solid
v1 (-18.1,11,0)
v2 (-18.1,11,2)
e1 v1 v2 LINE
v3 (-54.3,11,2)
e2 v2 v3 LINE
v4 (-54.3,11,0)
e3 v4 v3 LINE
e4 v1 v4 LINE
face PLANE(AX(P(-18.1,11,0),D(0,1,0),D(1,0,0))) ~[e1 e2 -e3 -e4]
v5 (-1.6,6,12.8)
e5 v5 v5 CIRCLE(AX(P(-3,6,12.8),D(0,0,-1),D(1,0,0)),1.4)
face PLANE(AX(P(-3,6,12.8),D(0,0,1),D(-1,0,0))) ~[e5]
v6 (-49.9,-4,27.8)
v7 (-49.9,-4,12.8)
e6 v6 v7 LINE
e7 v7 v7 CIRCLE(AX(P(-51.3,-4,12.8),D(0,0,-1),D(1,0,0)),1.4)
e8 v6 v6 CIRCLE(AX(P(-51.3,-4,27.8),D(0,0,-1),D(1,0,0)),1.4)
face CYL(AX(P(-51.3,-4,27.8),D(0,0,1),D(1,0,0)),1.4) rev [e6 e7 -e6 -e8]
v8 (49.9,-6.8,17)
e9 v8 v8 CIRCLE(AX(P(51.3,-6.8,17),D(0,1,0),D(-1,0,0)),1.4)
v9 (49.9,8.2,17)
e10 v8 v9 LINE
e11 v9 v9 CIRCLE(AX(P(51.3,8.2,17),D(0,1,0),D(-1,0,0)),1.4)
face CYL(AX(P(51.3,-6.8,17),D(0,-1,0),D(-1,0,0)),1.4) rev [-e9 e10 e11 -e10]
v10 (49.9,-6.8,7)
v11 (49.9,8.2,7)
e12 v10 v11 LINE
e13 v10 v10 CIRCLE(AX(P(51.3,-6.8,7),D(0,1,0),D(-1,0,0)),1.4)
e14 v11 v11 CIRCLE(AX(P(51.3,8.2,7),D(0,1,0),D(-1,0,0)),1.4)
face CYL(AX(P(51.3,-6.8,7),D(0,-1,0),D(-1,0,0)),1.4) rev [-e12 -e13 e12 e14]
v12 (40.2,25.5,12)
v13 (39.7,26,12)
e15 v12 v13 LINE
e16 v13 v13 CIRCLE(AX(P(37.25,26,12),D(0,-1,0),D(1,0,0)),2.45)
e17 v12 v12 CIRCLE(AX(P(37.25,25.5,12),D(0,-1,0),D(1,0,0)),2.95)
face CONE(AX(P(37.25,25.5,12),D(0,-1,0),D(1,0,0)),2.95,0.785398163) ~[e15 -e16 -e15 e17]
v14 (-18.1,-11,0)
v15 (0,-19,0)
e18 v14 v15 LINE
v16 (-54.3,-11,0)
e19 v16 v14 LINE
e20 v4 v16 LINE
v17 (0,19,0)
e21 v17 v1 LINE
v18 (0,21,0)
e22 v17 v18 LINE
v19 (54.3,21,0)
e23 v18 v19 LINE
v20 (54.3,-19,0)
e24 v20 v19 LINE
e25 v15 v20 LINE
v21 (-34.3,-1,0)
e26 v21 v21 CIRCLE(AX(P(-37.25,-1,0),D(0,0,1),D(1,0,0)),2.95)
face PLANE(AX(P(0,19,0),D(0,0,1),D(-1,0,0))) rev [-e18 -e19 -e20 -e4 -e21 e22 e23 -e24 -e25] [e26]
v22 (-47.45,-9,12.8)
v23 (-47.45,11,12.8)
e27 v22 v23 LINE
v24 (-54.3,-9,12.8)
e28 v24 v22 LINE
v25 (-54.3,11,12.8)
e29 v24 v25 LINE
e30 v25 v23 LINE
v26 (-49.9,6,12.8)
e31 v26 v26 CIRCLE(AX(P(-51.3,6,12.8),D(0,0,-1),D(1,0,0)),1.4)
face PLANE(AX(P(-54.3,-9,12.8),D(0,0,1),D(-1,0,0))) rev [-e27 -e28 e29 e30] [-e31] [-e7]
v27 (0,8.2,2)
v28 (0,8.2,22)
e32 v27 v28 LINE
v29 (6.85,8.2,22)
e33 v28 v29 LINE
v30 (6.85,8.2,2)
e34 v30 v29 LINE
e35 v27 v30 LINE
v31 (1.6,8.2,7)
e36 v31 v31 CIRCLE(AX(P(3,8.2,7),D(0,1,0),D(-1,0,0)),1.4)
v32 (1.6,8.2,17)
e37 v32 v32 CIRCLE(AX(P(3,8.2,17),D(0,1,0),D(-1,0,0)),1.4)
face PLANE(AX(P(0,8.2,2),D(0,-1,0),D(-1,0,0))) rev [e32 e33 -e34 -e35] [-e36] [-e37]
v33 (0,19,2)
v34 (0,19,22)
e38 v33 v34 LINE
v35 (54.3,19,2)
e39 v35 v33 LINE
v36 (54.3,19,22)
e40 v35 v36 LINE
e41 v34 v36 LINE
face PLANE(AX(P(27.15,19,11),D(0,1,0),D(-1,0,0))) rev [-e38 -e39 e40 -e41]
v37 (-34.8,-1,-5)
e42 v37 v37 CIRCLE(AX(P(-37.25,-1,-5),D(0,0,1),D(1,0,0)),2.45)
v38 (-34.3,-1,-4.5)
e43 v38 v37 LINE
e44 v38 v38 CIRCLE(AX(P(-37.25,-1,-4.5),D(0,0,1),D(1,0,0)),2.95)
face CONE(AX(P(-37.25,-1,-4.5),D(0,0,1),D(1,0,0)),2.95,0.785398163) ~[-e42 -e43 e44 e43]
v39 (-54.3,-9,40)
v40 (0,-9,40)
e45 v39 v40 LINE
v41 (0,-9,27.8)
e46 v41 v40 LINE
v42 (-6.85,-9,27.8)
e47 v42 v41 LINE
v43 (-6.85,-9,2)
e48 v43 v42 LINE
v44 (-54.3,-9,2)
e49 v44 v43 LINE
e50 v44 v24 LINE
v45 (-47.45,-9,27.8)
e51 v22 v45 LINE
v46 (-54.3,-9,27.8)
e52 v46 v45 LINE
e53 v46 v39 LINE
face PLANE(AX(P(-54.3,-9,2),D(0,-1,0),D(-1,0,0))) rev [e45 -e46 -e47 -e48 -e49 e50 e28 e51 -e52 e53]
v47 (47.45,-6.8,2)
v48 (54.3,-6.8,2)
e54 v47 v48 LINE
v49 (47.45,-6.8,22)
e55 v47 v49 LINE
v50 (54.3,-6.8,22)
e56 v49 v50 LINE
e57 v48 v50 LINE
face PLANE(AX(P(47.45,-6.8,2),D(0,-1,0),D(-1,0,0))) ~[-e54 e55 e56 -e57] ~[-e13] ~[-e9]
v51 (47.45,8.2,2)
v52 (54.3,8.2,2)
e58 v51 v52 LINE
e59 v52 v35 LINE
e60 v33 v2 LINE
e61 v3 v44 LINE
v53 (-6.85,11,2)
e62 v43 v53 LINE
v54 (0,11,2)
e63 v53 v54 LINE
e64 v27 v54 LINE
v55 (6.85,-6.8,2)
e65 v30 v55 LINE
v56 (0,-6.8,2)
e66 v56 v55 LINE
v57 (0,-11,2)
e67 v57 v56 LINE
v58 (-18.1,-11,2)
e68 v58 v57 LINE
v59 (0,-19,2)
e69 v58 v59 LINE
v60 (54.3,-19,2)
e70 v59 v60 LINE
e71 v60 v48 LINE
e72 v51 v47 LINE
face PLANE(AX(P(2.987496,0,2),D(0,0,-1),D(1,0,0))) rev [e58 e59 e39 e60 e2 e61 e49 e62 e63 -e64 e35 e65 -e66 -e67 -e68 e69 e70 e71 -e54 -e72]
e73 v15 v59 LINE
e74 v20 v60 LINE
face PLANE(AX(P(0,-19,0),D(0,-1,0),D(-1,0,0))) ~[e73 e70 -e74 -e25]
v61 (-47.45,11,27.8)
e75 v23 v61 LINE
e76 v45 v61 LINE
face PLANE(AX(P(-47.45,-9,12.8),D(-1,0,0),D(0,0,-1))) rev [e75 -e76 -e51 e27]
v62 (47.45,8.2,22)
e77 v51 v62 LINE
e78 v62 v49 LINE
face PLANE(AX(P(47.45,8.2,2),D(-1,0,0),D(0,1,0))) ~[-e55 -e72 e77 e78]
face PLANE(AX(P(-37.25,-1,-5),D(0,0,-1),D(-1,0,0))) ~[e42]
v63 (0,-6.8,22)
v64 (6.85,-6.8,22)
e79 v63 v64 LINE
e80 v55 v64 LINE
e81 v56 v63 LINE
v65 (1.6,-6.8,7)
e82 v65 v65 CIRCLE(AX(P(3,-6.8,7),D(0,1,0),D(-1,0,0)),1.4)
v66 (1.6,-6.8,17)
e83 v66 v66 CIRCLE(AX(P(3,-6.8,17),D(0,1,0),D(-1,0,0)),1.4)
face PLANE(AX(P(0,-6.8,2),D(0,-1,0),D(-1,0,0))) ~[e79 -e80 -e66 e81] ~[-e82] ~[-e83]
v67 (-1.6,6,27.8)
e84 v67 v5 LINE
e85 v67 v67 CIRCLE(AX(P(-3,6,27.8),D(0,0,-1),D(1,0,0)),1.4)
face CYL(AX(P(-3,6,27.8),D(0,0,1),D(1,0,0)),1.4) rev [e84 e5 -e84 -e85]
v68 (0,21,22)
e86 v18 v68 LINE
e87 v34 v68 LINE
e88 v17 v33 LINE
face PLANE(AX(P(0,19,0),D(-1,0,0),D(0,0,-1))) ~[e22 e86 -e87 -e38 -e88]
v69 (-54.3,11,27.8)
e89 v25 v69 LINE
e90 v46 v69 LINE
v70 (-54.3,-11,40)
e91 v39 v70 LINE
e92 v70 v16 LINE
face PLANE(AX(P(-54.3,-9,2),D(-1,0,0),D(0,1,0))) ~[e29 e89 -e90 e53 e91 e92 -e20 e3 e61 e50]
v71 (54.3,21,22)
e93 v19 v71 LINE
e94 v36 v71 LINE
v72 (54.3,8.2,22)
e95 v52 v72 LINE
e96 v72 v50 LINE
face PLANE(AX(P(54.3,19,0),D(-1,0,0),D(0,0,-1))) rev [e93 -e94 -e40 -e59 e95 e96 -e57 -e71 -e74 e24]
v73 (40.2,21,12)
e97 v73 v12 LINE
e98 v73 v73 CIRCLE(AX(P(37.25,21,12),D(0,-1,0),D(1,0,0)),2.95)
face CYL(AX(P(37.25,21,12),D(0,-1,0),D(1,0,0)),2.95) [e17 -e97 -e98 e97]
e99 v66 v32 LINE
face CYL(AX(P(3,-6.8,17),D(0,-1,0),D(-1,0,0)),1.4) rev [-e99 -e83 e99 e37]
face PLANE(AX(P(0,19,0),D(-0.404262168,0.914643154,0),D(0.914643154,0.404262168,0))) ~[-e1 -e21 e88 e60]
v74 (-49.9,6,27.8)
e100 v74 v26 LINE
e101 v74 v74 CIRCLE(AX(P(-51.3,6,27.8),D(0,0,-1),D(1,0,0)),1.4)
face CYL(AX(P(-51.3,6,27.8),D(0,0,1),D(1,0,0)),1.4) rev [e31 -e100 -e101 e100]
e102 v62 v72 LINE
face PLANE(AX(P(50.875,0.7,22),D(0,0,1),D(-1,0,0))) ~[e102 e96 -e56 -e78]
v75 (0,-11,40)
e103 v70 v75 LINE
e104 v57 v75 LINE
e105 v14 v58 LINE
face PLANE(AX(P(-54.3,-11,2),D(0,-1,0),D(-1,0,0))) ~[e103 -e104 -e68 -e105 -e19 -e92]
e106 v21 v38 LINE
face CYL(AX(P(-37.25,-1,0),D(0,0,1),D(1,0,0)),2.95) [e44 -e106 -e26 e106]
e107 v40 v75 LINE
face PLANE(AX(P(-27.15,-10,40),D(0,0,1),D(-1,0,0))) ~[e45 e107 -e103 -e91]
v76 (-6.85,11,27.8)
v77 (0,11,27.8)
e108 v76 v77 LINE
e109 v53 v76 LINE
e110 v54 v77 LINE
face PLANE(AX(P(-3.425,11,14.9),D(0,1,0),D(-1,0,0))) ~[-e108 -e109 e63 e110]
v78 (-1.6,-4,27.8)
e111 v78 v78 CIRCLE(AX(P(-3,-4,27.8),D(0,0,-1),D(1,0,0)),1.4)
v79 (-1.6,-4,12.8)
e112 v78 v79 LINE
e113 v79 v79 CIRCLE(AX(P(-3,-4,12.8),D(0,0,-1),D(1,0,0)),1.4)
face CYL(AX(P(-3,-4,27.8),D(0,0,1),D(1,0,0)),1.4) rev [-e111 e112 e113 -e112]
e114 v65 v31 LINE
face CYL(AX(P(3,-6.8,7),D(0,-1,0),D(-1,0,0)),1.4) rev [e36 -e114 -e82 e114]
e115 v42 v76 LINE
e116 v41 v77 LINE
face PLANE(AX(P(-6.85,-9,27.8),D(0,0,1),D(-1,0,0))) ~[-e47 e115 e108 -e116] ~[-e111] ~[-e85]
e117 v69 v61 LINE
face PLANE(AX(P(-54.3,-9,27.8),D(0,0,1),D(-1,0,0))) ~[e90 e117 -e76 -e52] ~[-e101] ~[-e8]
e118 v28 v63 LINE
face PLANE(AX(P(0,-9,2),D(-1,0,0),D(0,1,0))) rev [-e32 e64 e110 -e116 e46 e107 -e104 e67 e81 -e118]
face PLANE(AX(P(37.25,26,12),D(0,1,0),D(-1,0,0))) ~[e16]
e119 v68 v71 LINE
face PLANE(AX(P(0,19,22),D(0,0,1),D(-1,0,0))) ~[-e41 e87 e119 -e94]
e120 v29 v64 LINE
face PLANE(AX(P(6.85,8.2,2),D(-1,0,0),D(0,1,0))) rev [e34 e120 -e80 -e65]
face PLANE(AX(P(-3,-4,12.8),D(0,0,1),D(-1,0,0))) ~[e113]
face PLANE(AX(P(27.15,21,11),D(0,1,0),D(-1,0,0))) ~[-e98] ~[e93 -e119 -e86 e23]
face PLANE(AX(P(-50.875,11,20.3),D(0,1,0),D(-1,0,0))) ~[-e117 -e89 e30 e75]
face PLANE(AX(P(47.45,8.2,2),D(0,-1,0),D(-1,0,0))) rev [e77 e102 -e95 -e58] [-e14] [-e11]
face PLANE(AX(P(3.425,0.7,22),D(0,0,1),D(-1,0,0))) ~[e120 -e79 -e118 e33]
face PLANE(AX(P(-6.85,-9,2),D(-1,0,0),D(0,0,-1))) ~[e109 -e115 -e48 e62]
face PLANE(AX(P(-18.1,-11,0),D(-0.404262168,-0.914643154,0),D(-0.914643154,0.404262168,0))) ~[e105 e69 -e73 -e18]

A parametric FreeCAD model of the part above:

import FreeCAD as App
import Part
import Sketcher
Q = App.Units.Quantity


def edges_at(feature, points):
    """Names of the edges that pass closest to the given points."""
    edges = feature.Shape.Edges
    near = lambda p: min(range(len(edges)), key=lambda i: edges[i].distToShape(Part.Vertex(*p))[0])
    return sorted({f"Edge{near(p) + 1}" for p in points})


def add_polygon(sketch, points):
    """Adds a closed chain of lines whose ends are joined by coincident constraints."""
    first, n = sketch.GeometryCount, len(points)
    for a, b in zip(points, points[1:] + points[:1]):
        sketch.addGeometry(Part.LineSegment(App.Vector(*a, 0), App.Vector(*b, 0)), False)
    for i in range(n):
        sketch.addConstraint(Sketcher.Constraint("Coincident", first + i, 2, first + (i + 1) % n, 1))

doc = App.newDocument("Part")
body = doc.addObject("PartDesign::Body", "Body")

# Sketch on XY plane
sketch1 = body.newObject("Sketcher::SketchObject", "Sketch")
sketch1.AttachmentSupport = (doc.getObject("XY_Plane"), [""])
sketch1.MapMode = "FlatFace"
add_polygon(sketch1, [(54.3, -19), (54.3, 19), (0, 19), (-18.1, 11), (-54.3, 11), (-54.3, -11), (-18.1, -11), (0, -19)])  # lines 0-7
sketch1.addConstraint(Sketcher.Constraint("Vertical", 0))
sketch1.addConstraint(Sketcher.Constraint("Horizontal", 1))
sketch1.addConstraint(Sketcher.Constraint("Horizontal", 3))
sketch1.addConstraint(Sketcher.Constraint("Vertical", 4))
sketch1.addConstraint(Sketcher.Constraint("Horizontal", 5))
sketch1.addConstraint(Sketcher.Constraint("Horizontal", 7))
sketch1.addConstraint(Sketcher.Constraint("Symmetric", 1, 2, 6, 2, -1, 1))
sketch1.addConstraint(Sketcher.Constraint("Symmetric", 2, 2, 5, 2, -1))
sketch1.addConstraint(Sketcher.Constraint("PointOnObject", 1, 2, -2))
sketch1.addConstraint(Sketcher.Constraint("DistanceY", 0, 1, 0, 2, Q("38 mm")))
sketch1.addConstraint(Sketcher.Constraint("DistanceY", 4, 2, 4, 1, Q("22 mm")))
sketch1.addConstraint(Sketcher.Constraint("DistanceX", 1, 2, 1, 1, Q("54.3 mm")))
sketch1.addConstraint(Sketcher.Constraint("DistanceX", 3, 2, 3, 1, Q("36.2 mm")))
sketch1.addConstraint(Sketcher.Constraint("DistanceX", 2, 2, -1, 1, Q("18.1 mm")))
pad1 = body.newObject("PartDesign::Pad", "Pad")
pad1.Profile = sketch1
pad1.Length = 2

# Sketch on XZ plane
sketch2 = body.newObject("Sketcher::SketchObject", "Sketch001")
sketch2.AttachmentSupport = (doc.getObject("XZ_Plane"), [""])
sketch2.MapMode = "FlatFace"
sketch2.AttachmentOffset = App.Placement(App.Vector(0, 0, 19), App.Rotation())
add_polygon(sketch2, [(0, 22), (0, 0), (54.3, 0), (54.3, 22)])  # lines 0-3
sketch2.addConstraint(Sketcher.Constraint("Vertical", 0))
sketch2.addConstraint(Sketcher.Constraint("Horizontal", 1))
sketch2.addConstraint(Sketcher.Constraint("Vertical", 2))
sketch2.addConstraint(Sketcher.Constraint("Horizontal", 3))
sketch2.addConstraint(Sketcher.Constraint("Coincident", 0, 2, -1, 1))
sketch2.addConstraint(Sketcher.Constraint("DistanceY", 0, 2, 0, 1, Q("22 mm")))
sketch2.addConstraint(Sketcher.Constraint("DistanceX", 1, 1, 1, 2, Q("54.3 mm")))
pad2 = body.newObject("PartDesign::Pad", "Pad001")
pad2.Profile = sketch2
pad2.Length = 2

# Sketch on XZ plane
sketch3 = body.newObject("Sketcher::SketchObject", "Sketch002")
sketch3.AttachmentSupport = (doc.getObject("XZ_Plane"), [""])
sketch3.MapMode = "FlatFace"
sketch3.AttachmentOffset = App.Placement(App.Vector(0, 0, 21), App.Rotation())
sketch3.addGeometry(Part.Circle(App.Vector(37.25, 12, 0), App.Vector(0, 0, 1), 2.95), False)
sketch3.addConstraint(Sketcher.Constraint("Diameter", 0, Q("5.9 mm")))
sketch3.addConstraint(Sketcher.Constraint("DistanceY", -1, 1, 0, 3, Q("12 mm")))
sketch3.addConstraint(Sketcher.Constraint("DistanceX", -1, 1, 0, 3, Q("37.25 mm")))
pad3 = body.newObject("PartDesign::Pad", "Pad002")
pad3.Profile = sketch3
pad3.Length = 5
doc.recompute()

chamfer = body.newObject("PartDesign::Chamfer", "Chamfer")
chamfer.Base = (pad3, edges_at(pad3, [(34.3, -26, 12)]))
chamfer.Size = 0.5

# Sketch on XY plane
sketch4 = body.newObject("Sketcher::SketchObject", "Sketch003")
sketch4.AttachmentSupport = (doc.getObject("XY_Plane"), [""])
sketch4.MapMode = "FlatFace"
sketch4.AttachmentOffset = App.Placement(App.Vector(0, 0, 2), App.Rotation())
add_polygon(sketch4, [(0, 6.8), (0, -8.2), (6.85, -8.2), (6.85, 6.8)])  # lines 0-3
sketch4.addConstraint(Sketcher.Constraint("Vertical", 0))
sketch4.addConstraint(Sketcher.Constraint("Horizontal", 1))
sketch4.addConstraint(Sketcher.Constraint("Vertical", 2))
sketch4.addConstraint(Sketcher.Constraint("Horizontal", 3))
sketch4.addConstraint(Sketcher.Constraint("PointOnObject", 0, 2, -2))
sketch4.addConstraint(Sketcher.Constraint("DistanceY", 0, 2, 0, 1, Q("15 mm")))
sketch4.addConstraint(Sketcher.Constraint("DistanceX", 1, 1, 1, 2, Q("6.85 mm")))
sketch4.addConstraint(Sketcher.Constraint("DistanceY", 0, 2, -1, 1, Q("8.2 mm")))
pad4 = body.newObject("PartDesign::Pad", "Pad003")
pad4.Profile = sketch4
pad4.Length = 20

# Sketch on XZ plane
sketch5 = body.newObject("Sketcher::SketchObject", "Sketch004")
sketch5.AttachmentSupport = (doc.getObject("XZ_Plane"), [""])
sketch5.MapMode = "FlatFace"
sketch5.AttachmentOffset = App.Placement(App.Vector(0, 0, -6.8), App.Rotation())
sketch5.addGeometry(Part.Circle(App.Vector(3, 17, 0), App.Vector(0, 0, 1), 1.4), False)
sketch5.addGeometry(Part.Circle(App.Vector(3, 7, 0), App.Vector(0, 0, 1), 1.4), False)
sketch5.addConstraint(Sketcher.Constraint("Equal", 0, 1))
sketch5.addConstraint(Sketcher.Constraint("Vertical", 0, 3, 1, 3))
sketch5.addConstraint(Sketcher.Constraint("Diameter", 0, Q("2.8 mm")))
sketch5.addConstraint(Sketcher.Constraint("DistanceX", -1, 1, 0, 3, Q("3 mm")))
sketch5.addConstraint(Sketcher.Constraint("DistanceY", -1, 1, 0, 3, Q("17 mm")))
sketch5.addConstraint(Sketcher.Constraint("DistanceY", -1, 1, 1, 3, Q("7 mm")))
pocket1 = body.newObject("PartDesign::Pocket", "Pocket")
pocket1.Profile = sketch5
pocket1.Length = 15
pocket1.Reversed = True

# Sketch on XY plane
sketch6 = body.newObject("Sketcher::SketchObject", "Sketch005")
sketch6.AttachmentSupport = (doc.getObject("XY_Plane"), [""])
sketch6.MapMode = "FlatFace"
sketch6.AttachmentOffset = App.Placement(App.Vector(0, 0, 2), App.Rotation())
add_polygon(sketch6, [(47.45, 6.8), (47.45, -8.2), (54.3, -8.2), (54.3, 6.8)])  # lines 0-3
sketch6.addConstraint(Sketcher.Constraint("Vertical", 0))
sketch6.addConstraint(Sketcher.Constraint("Horizontal", 1))
sketch6.addConstraint(Sketcher.Constraint("Vertical", 2))
sketch6.addConstraint(Sketcher.Constraint("Horizontal", 3))
sketch6.addConstraint(Sketcher.Constraint("DistanceY", 0, 2, 0, 1, Q("15 mm")))
sketch6.addConstraint(Sketcher.Constraint("DistanceX", 1, 1, 1, 2, Q("6.85 mm")))
sketch6.addConstraint(Sketcher.Constraint("DistanceY", 0, 2, -1, 1, Q("8.2 mm")))
sketch6.addConstraint(Sketcher.Constraint("DistanceX", -1, 1, 1, 2, Q("54.3 mm")))
pad5 = body.newObject("PartDesign::Pad", "Pad004")
pad5.Profile = sketch6
pad5.Length = 20

# Sketch on XZ plane
sketch7 = body.newObject("Sketcher::SketchObject", "Sketch006")
sketch7.AttachmentSupport = (doc.getObject("XZ_Plane"), [""])
sketch7.MapMode = "FlatFace"
sketch7.AttachmentOffset = App.Placement(App.Vector(0, 0, -6.8), App.Rotation())
sketch7.addGeometry(Part.Circle(App.Vector(51.3, 17, 0), App.Vector(0, 0, 1), 1.4), False)
sketch7.addGeometry(Part.Circle(App.Vector(51.3, 7, 0), App.Vector(0, 0, 1), 1.4), False)
sketch7.addConstraint(Sketcher.Constraint("Equal", 0, 1))
sketch7.addConstraint(Sketcher.Constraint("Vertical", 0, 3, 1, 3))
sketch7.addConstraint(Sketcher.Constraint("Diameter", 0, Q("2.8 mm")))
sketch7.addConstraint(Sketcher.Constraint("DistanceY", -1, 1, 0, 3, Q("17 mm")))
sketch7.addConstraint(Sketcher.Constraint("DistanceY", -1, 1, 1, 3, Q("7 mm")))
sketch7.addConstraint(Sketcher.Constraint("DistanceX", -1, 1, 0, 3, Q("51.3 mm")))
pocket2 = body.newObject("PartDesign::Pocket", "Pocket001")
pocket2.Profile = sketch7
pocket2.Length = 15
pocket2.Reversed = True

# Sketch on XY plane
sketch8 = body.newObject("Sketcher::SketchObject", "Sketch007")
sketch8.AttachmentSupport = (doc.getObject("XY_Plane"), [""])
sketch8.MapMode = "FlatFace"
sketch8.AttachmentOffset = App.Placement(App.Vector(0, 0, 2), App.Rotation())
add_polygon(sketch8, [(-54.3, 11), (-54.3, 9), (0, 9), (0, 11)])  # lines 0-3
sketch8.addConstraint(Sketcher.Constraint("Vertical", 0))
sketch8.addConstraint(Sketcher.Constraint("Horizontal", 1))
sketch8.addConstraint(Sketcher.Constraint("Vertical", 2))
sketch8.addConstraint(Sketcher.Constraint("Horizontal", 3))
sketch8.addConstraint(Sketcher.Constraint("PointOnObject", 1, 2, -2))
sketch8.addConstraint(Sketcher.Constraint("DistanceY", 0, 2, 0, 1, Q("2 mm")))
sketch8.addConstraint(Sketcher.Constraint("DistanceX", 1, 1, 1, 2, Q("54.3 mm")))
sketch8.addConstraint(Sketcher.Constraint("DistanceY", -1, 1, 0, 2, Q("9 mm")))
pad6 = body.newObject("PartDesign::Pad", "Pad005")
pad6.Profile = sketch8
pad6.Length = 38

# Sketch on XZ plane
sketch9 = body.newObject("Sketcher::SketchObject", "Sketch008")
sketch9.AttachmentSupport = (doc.getObject("XZ_Plane"), [""])
sketch9.MapMode = "FlatFace"
sketch9.AttachmentOffset = App.Placement(App.Vector(0, 0, -9), App.Rotation())
add_polygon(sketch9, [(-54.3, 27.8), (-54.3, 12.8), (-47.45, 12.8), (-47.45, 27.8)])  # lines 0-3
sketch9.addConstraint(Sketcher.Constraint("Vertical", 0))
sketch9.addConstraint(Sketcher.Constraint("Horizontal", 1))
sketch9.addConstraint(Sketcher.Constraint("Vertical", 2))
sketch9.addConstraint(Sketcher.Constraint("Horizontal", 3))
sketch9.addConstraint(Sketcher.Constraint("DistanceY", 0, 2, 0, 1, Q("15 mm")))
sketch9.addConstraint(Sketcher.Constraint("DistanceX", 1, 1, 1, 2, Q("6.85 mm")))
sketch9.addConstraint(Sketcher.Constraint("DistanceX", 0, 2, -1, 1, Q("54.3 mm")))
sketch9.addConstraint(Sketcher.Constraint("DistanceY", -1, 1, 0, 2, Q("12.8 mm")))
pad7 = body.newObject("PartDesign::Pad", "Pad006")
pad7.Profile = sketch9
pad7.Length = 20

# Sketch on XY plane
sketch10 = body.newObject("Sketcher::SketchObject", "Sketch009")
sketch10.AttachmentSupport = (doc.getObject("XY_Plane"), [""])
sketch10.MapMode = "FlatFace"
sketch10.AttachmentOffset = App.Placement(App.Vector(0, 0, 27.8), App.Rotation())
sketch10.addGeometry(Part.Circle(App.Vector(-51.3, -6, 0), App.Vector(0, 0, 1), 1.4), False)
sketch10.addGeometry(Part.Circle(App.Vector(-51.3, 4, 0), App.Vector(0, 0, 1), 1.4), False)
sketch10.addConstraint(Sketcher.Constraint("Equal", 0, 1))
sketch10.addConstraint(Sketcher.Constraint("Vertical", 0, 3, 1, 3))
sketch10.addConstraint(Sketcher.Constraint("Diameter", 0, Q("2.8 mm")))
sketch10.addConstraint(Sketcher.Constraint("DistanceY", 0, 3, -1, 1, Q("6 mm")))
sketch10.addConstraint(Sketcher.Constraint("DistanceY", -1, 1, 1, 3, Q("4 mm")))
sketch10.addConstraint(Sketcher.Constraint("DistanceX", 0, 3, -1, 1, Q("51.3 mm")))
pocket3 = body.newObject("PartDesign::Pocket", "Pocket002")
pocket3.Profile = sketch10
pocket3.Length = 15

# Sketch on XZ plane
sketch11 = body.newObject("Sketcher::SketchObject", "Sketch010")
sketch11.AttachmentSupport = (doc.getObject("XZ_Plane"), [""])
sketch11.MapMode = "FlatFace"
sketch11.AttachmentOffset = App.Placement(App.Vector(0, 0, -9), App.Rotation())
add_polygon(sketch11, [(-6.85, 27.8), (-6.85, 2), (0, 2), (0, 27.8)])  # lines 0-3
sketch11.addConstraint(Sketcher.Constraint("Vertical", 0))
sketch11.addConstraint(Sketcher.Constraint("Horizontal", 1))
sketch11.addConstraint(Sketcher.Constraint("Vertical", 2))
sketch11.addConstraint(Sketcher.Constraint("Horizontal", 3))
sketch11.addConstraint(Sketcher.Constraint("PointOnObject", 1, 2, -2))
sketch11.addConstraint(Sketcher.Constraint("DistanceY", 0, 2, 0, 1, Q("25.8 mm")))
sketch11.addConstraint(Sketcher.Constraint("DistanceY", -1, 1, 0, 2, Q("2 mm")))
sketch11.addConstraint(Sketcher.Constraint("DistanceX", 1, 1, 1, 2, Q("6.85 mm")))
pad8 = body.newObject("PartDesign::Pad", "Pad007")
pad8.Profile = sketch11
pad8.Length = 20

# Sketch on XY plane
sketch12 = body.newObject("Sketcher::SketchObject", "Sketch011")
sketch12.AttachmentSupport = (doc.getObject("XY_Plane"), [""])
sketch12.MapMode = "FlatFace"
sketch12.AttachmentOffset = App.Placement(App.Vector(0, 0, 27.8), App.Rotation())
sketch12.addGeometry(Part.Circle(App.Vector(-3, -6, 0), App.Vector(0, 0, 1), 1.4), False)
sketch12.addGeometry(Part.Circle(App.Vector(-3, 4, 0), App.Vector(0, 0, 1), 1.4), False)
sketch12.addConstraint(Sketcher.Constraint("Equal", 0, 1))
sketch12.addConstraint(Sketcher.Constraint("Vertical", 0, 3, 1, 3))
sketch12.addConstraint(Sketcher.Constraint("Diameter", 0, Q("2.8 mm")))
sketch12.addConstraint(Sketcher.Constraint("DistanceX", 0, 3, -1, 1, Q("3 mm")))
sketch12.addConstraint(Sketcher.Constraint("DistanceY", 0, 3, -1, 1, Q("6 mm")))
sketch12.addConstraint(Sketcher.Constraint("DistanceY", -1, 1, 1, 3, Q("4 mm")))
pocket4 = body.newObject("PartDesign::Pocket", "Pocket003")
pocket4.Profile = sketch12
pocket4.Length = 15

# Sketch on XY plane
sketch13 = body.newObject("Sketcher::SketchObject", "Sketch012")
sketch13.AttachmentSupport = (doc.getObject("XY_Plane"), [""])
sketch13.MapMode = "FlatFace"
sketch13.addGeometry(Part.Circle(App.Vector(-37.25, 1, 0), App.Vector(0, 0, 1), 2.95), False)
sketch13.addConstraint(Sketcher.Constraint("Diameter", 0, Q("5.9 mm")))
sketch13.addConstraint(Sketcher.Constraint("DistanceY", -1, 1, 0, 3, Q("1 mm")))
sketch13.addConstraint(Sketcher.Constraint("DistanceX", 0, 3, -1, 1, Q("37.25 mm")))
pad9 = body.newObject("PartDesign::Pad", "Pad008")
pad9.Profile = sketch13
pad9.Length = 5
pad9.Reversed = True
doc.recompute()

chamfer2 = body.newObject("PartDesign::Chamfer", "Chamfer001")
chamfer2.Base = (pad9, edges_at(pad9, [(-40.2, 1, -5)]))
chamfer2.Size = 0.5
body2 = doc.addObject("PartDesign::Body", "Body001")
doc.recompute()

mirroring = doc.addObject("Part::Mirroring", "Mirroring")
mirroring.Source = body
mirroring.Base = App.Vector(0, 0, 0)
mirroring.Normal = App.Vector(0, 1, 0)
body2.BaseFeature = mirroring
doc.recompute()
body.Visibility = False
mirroring.Visibility = False

doc.recompute()
